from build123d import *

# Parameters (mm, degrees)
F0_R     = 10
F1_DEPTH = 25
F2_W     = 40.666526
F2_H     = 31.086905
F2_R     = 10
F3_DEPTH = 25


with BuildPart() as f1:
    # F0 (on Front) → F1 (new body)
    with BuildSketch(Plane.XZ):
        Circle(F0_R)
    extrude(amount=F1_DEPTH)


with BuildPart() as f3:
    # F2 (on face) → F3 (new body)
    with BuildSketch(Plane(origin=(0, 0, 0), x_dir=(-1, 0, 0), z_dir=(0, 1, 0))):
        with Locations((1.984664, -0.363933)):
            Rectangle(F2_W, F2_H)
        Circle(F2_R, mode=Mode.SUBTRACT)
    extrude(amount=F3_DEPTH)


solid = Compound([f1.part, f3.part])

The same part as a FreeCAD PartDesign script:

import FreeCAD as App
import Part
import Sketcher

doc = App.newDocument("Part")
body = doc.addObject("PartDesign::Body", "Body")

sketch1 = body.newObject("Sketcher::SketchObject", "Sketch")
sketch1.AttachmentSupport = (doc.getObject("XZ_Plane"), [""])
sketch1.MapMode = "FlatFace"
sketch1.addGeometry(Part.Circle(App.Vector(0, 0, 0), App.Vector(0, 0, 1), 10), False)
sketch1.addConstraint(Sketcher.Constraint("Coincident", 0, 3, -1, 1))
sketch1.addConstraint(Sketcher.Constraint("Diameter", 0, 20.0))
pad1 = body.newObject("PartDesign::Pad", "Pad")
pad1.Profile = sketch1
pad1.Length = 25
body2 = doc.addObject("PartDesign::Body", "Body001")

sketch2 = body2.newObject("Sketcher::SketchObject", "Sketch001")
sketch2.AttachmentSupport = (doc.getObject("XZ_Plane001"), [""])
sketch2.MapMode = "FlatFace"
sketch2.addGeometry(Part.LineSegment(App.Vector(18, 15, 0), App.Vector(18, -16, 0)), False)
sketch2.addGeometry(Part.LineSegment(App.Vector(18, -16, 0), App.Vector(-22, -16, 0)), False)
sketch2.addGeometry(Part.LineSegment(App.Vector(-22, -16, 0), App.Vector(-22, 15, 0)), False)
sketch2.addGeometry(Part.LineSegment(App.Vector(-22, 15, 0), App.Vector(18, 15, 0)), False)
sketch2.addGeometry(Part.Circle(App.Vector(0, 0, 0), App.Vector(0, 0, 1), 10), False)
sketch2.addConstraint(Sketcher.Constraint("Coincident", 0, 2, 1, 1))
sketch2.addConstraint(Sketcher.Constraint("Coincident", 1, 2, 2, 1))
sketch2.addConstraint(Sketcher.Constraint("Coincident", 2, 2, 3, 1))
sketch2.addConstraint(Sketcher.Constraint("Coincident", 3, 2, 0, 1))
sketch2.addConstraint(Sketcher.Constraint("Vertical", 0))
sketch2.addConstraint(Sketcher.Constraint("Horizontal", 1))
sketch2.addConstraint(Sketcher.Constraint("Vertical", 2))
sketch2.addConstraint(Sketcher.Constraint("Horizontal", 3))
sketch2.addConstraint(Sketcher.Constraint("Coincident", 4, 3, -1, 1))
sketch2.addConstraint(Sketcher.Constraint("Diameter", 4, 20.0))
sketch2.addConstraint(Sketcher.Constraint("DistanceX", -1, 1, 0, 2, 18.348599))
sketch2.addConstraint(Sketcher.Constraint("DistanceX", 1, 2, 1, 1, 40.666526))
sketch2.addConstraint(Sketcher.Constraint("DistanceY", 0, 2, 0, 1, 31.086905))
sketch2.addConstraint(Sketcher.Constraint("DistanceY", -1, 1, 2, 2, 15.179519))
pad2 = body2.newObject("PartDesign::Pad", "Pad001")
pad2.Profile = sketch2
pad2.Length = 25
pad2.Reversed = True

doc.recompute()
